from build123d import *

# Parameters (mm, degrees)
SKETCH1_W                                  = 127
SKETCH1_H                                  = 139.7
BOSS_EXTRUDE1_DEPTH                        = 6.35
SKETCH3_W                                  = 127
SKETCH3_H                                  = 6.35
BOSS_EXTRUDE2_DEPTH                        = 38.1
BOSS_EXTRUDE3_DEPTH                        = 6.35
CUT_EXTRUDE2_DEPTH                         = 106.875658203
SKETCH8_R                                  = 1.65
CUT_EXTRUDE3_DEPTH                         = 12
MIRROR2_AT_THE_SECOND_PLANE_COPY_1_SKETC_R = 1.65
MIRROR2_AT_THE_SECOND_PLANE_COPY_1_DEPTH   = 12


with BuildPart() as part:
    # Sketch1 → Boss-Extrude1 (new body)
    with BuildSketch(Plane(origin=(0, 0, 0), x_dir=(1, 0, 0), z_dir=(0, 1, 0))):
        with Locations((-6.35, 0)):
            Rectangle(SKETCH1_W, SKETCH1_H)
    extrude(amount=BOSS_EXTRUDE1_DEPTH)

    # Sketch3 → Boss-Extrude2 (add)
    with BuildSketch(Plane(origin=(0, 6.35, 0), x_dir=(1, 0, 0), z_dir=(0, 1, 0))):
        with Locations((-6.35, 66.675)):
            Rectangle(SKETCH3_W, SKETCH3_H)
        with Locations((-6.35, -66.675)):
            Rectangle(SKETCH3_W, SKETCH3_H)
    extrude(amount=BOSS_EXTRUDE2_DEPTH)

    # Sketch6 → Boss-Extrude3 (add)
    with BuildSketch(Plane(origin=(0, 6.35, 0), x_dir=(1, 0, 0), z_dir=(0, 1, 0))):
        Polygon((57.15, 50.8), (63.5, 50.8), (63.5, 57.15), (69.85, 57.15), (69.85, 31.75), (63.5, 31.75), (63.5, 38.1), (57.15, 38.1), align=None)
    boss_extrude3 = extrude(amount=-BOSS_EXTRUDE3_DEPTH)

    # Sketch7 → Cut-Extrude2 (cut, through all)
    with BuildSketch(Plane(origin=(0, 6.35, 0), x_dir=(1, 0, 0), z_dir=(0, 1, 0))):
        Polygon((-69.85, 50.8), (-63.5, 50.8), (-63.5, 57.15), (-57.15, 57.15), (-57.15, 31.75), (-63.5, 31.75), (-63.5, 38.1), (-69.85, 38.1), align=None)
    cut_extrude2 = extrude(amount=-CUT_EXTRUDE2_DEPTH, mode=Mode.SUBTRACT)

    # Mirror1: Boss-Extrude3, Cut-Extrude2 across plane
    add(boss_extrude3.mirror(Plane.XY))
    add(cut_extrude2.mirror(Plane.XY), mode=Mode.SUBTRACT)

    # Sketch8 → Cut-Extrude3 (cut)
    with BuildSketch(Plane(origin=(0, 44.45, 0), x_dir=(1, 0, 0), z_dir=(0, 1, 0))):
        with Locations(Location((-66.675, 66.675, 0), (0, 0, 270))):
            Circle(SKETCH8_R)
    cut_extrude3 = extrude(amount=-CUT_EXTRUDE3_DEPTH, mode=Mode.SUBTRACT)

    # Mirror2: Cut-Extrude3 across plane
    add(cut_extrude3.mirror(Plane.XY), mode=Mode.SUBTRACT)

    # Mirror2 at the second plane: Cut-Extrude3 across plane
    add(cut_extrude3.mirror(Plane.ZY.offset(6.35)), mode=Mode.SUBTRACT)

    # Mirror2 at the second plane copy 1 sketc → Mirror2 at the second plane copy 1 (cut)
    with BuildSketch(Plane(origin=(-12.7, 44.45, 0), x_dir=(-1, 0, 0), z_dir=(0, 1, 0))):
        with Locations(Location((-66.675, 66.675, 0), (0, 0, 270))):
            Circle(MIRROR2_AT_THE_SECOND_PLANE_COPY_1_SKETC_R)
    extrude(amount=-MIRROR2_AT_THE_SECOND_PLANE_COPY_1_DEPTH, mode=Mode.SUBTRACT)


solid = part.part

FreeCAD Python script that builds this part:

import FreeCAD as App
import Part
import Sketcher
Q = App.Units.Quantity


def add_polygon(sketch, points):
    """Adds a closed chain of lines whose ends are joined by coincident constraints."""
    first, n = sketch.GeometryCount, len(points)
    for a, b in zip(points, points[1:] + points[:1]):
        sketch.addGeometry(Part.LineSegment(App.Vector(*a, 0), App.Vector(*b, 0)), False)
    for i in range(n):
        sketch.addConstraint(Sketcher.Constraint("Coincident", first + i, 2, first + (i + 1) % n, 1))

doc = App.newDocument("Part")
body = doc.addObject("PartDesign::Body", "Body")

sketch1 = body.newObject("Sketcher::SketchObject", "Sketch")
sketch1.AttachmentSupport = (doc.getObject("XZ_Plane"), [""])
sketch1.MapMode = "FlatFace"
add_polygon(sketch1, [(-69.85, -69.85), (-69.85, 69.85), (57.15, 69.85), (57.15, -69.85)])
sketch1.addConstraint(Sketcher.Constraint("Vertical", 0))
sketch1.addConstraint(Sketcher.Constraint("Horizontal", 1))
sketch1.addConstraint(Sketcher.Constraint("Vertical", 2))
sketch1.addConstraint(Sketcher.Constraint("Horizontal", 3))
sketch1.addConstraint(Sketcher.Constraint("DistanceX", 1, 1, 1, 2, Q("5 in")))
sketch1.addConstraint(Sketcher.Constraint("DistanceY", 0, 1, 0, 2, Q("5.5 in")))
sketch1.addConstraint(Sketcher.Constraint("DistanceX", 0, 2, -1, 1, Q("2.75 in")))
sketch1.addConstraint(Sketcher.Constraint("DistanceY", -1, 1, 0, 2, Q("2.75 in")))
pad1 = body.newObject("PartDesign::Pad", "Pad")
pad1.Profile = sketch1
pad1.Length = Q("0.25 in")
pad1.Reversed = True

sketch2 = body.newObject("Sketcher::SketchObject", "Sketch001")
sketch2.AttachmentSupport = (doc.getObject("XZ_Plane"), [""])
sketch2.MapMode = "FlatFace"
sketch2.AttachmentOffset = App.Placement(App.Vector(0, 0, -0.25 * 25.4), App.Rotation())
add_polygon(sketch2, [(-69.85, -69.85), (-69.85, -63.5), (57.15, -63.5), (57.15, -69.85)])
add_polygon(sketch2, [(-69.85, 63.5), (-69.85, 69.85), (57.15, 69.85), (57.15, 63.5)])
sketch2.addConstraint(Sketcher.Constraint("Vertical", 0))
sketch2.addConstraint(Sketcher.Constraint("Horizontal", 1))
sketch2.addConstraint(Sketcher.Constraint("Vertical", 2))
sketch2.addConstraint(Sketcher.Constraint("Horizontal", 3))
sketch2.addConstraint(Sketcher.Constraint("Vertical", 4))
sketch2.addConstraint(Sketcher.Constraint("Horizontal", 5))
sketch2.addConstraint(Sketcher.Constraint("Vertical", 6))
sketch2.addConstraint(Sketcher.Constraint("Horizontal", 7))
sketch2.addConstraint(Sketcher.Constraint("Symmetric", 3, 2, 4, 2, -1))
sketch2.addConstraint(Sketcher.Constraint("Symmetric", 1, 2, 6, 2, -1))
sketch2.addConstraint(Sketcher.Constraint("DistanceX", 1, 1, 1, 2, Q("5 in")))
sketch2.addConstraint(Sketcher.Constraint("DistanceY", 1, 2, 6, 2, Q("5 in")))
sketch2.addConstraint(Sketcher.Constraint("DistanceY", 0, 1, 0, 2, Q("0.25 in")))
sketch2.addConstraint(Sketcher.Constraint("DistanceX", 0, 2, -1, 1, Q("2.75 in")))
pad2 = body.newObject("PartDesign::Pad", "Pad001")
pad2.Profile = sketch2
pad2.Length = Q("1.5 in")
pad2.Reversed = True

sketch3 = body.newObject("Sketcher::SketchObject", "Sketch002")
sketch3.AttachmentSupport = (doc.getObject("XZ_Plane"), [""])
sketch3.MapMode = "FlatFace"
sketch3.AttachmentOffset = App.Placement(App.Vector(0, 0, -0.25 * 25.4), App.Rotation())
add_polygon(sketch3, [(63.5, -50.8), (57.15, -50.8), (57.15, -38.1), (63.5, -38.1), (63.5, -31.75), (69.85, -31.75), (69.85, -57.15), (63.5, -57.15)])
sketch3.addConstraint(Sketcher.Constraint("Horizontal", 0))
sketch3.addConstraint(Sketcher.Constraint("Vertical", 1))
sketch3.addConstraint(Sketcher.Constraint("Horizontal", 2))
sketch3.addConstraint(Sketcher.Constraint("Vertical", 3))
sketch3.addConstraint(Sketcher.Constraint("Horizontal", 4))
sketch3.addConstraint(Sketcher.Constraint("Vertical", 5))
sketch3.addConstraint(Sketcher.Constraint("Horizontal", 6))
sketch3.addConstraint(Sketcher.Constraint("Vertical", 7))
sketch3.addConstraint(Sketcher.Constraint("Vertical", 3, 2, 6, 2))
sketch3.addConstraint(Sketcher.Constraint("Equal", 2, 4))
sketch3.addConstraint(Sketcher.Constraint("Equal", 6, 3))
sketch3.addConstraint(Sketcher.Constraint("Equal", 3, 7))
sketch3.addConstraint(Sketcher.Constraint("DistanceY", 5, 2, 5, 1, Q("1 in")))
sketch3.addConstraint(Sketcher.Constraint("DistanceY", 1, 1, 1, 2, Q("0.5 in")))
sketch3.addConstraint(Sketcher.Constraint("DistanceY", 0, 2, -1, 1, Q("2 in")))
sketch3.addConstraint(Sketcher.Constraint("DistanceX", -1, 1, 2, 2, Q("2.5 in")))
pad3 = body.newObject("PartDesign::Pad", "Pad002")
pad3.Profile = sketch3
pad3.Length = Q("0.25 in")

sketch4 = body.newObject("Sketcher::SketchObject", "Sketch003")
sketch4.AttachmentSupport = (doc.getObject("XZ_Plane"), [""])
sketch4.MapMode = "FlatFace"
sketch4.AttachmentOffset = App.Placement(App.Vector(0, 0, -0.25 * 25.4), App.Rotation())
add_polygon(sketch4, [(-63.5, -50.8), (-69.85, -50.8), (-69.85, -38.1), (-63.5, -38.1), (-63.5, -31.75), (-57.15, -31.75), (-57.15, -57.15), (-63.5, -57.15)])
sketch4.addConstraint(Sketcher.Constraint("Horizontal", 0))
sketch4.addConstraint(Sketcher.Constraint("Vertical", 1))
sketch4.addConstraint(Sketcher.Constraint("Horizontal", 2))
sketch4.addConstraint(Sketcher.Constraint("Vertical", 3))
sketch4.addConstraint(Sketcher.Constraint("Horizontal", 4))
sketch4.addConstraint(Sketcher.Constraint("Vertical", 5))
sketch4.addConstraint(Sketcher.Constraint("Horizontal", 6))
sketch4.addConstraint(Sketcher.Constraint("Vertical", 7))
sketch4.addConstraint(Sketcher.Constraint("Vertical", 3, 2, 6, 2))
sketch4.addConstraint(Sketcher.Constraint("Equal", 2, 4))
sketch4.addConstraint(Sketcher.Constraint("Equal", 6, 3))
sketch4.addConstraint(Sketcher.Constraint("Equal", 3, 7))
sketch4.addConstraint(Sketcher.Constraint("DistanceY", 5, 2, 5, 1, Q("1 in")))
sketch4.addConstraint(Sketcher.Constraint("DistanceY", 1, 1, 1, 2, Q("0.5 in")))
sketch4.addConstraint(Sketcher.Constraint("DistanceY", 0, 2, -1, 1, Q("2 in")))
sketch4.addConstraint(Sketcher.Constraint("DistanceX", 2, 2, -1, 1, Q("2.5 in")))
pocket1 = body.newObject("PartDesign::Pocket", "Pocket")
pocket1.Profile = sketch4
pocket1.Type = "ThroughAll"
pocket1.Reversed = True
doc.recompute()

mirrored = body.newObject("PartDesign::Mirrored", "Mirrored")
mirrored.Originals = [pad3, pocket1]
mirrored.MirrorPlane = (doc.getObject("XY_Plane"), [""])
body.Tip = mirrored

sketch5 = body.newObject("Sketcher::SketchObject", "Sketch004")
sketch5.AttachmentSupport = (doc.getObject("XZ_Plane"), [""])
sketch5.MapMode = "FlatFace"
sketch5.AttachmentOffset = App.Placement(App.Vector(0, 0, -1.75 * 25.4), App.Rotation())
sketch5.addGeometry(Part.Circle(App.Vector(-66.675, -66.675, 0), App.Vector(0, 0, 1), 1.65), False)
sketch5.addConstraint(Sketcher.Constraint("Diameter", 0, Q("3.3 mm")))
sketch5.addConstraint(Sketcher.Constraint("DistanceX", 0, 3, -1, 1, Q("2.625 in")))
sketch5.addConstraint(Sketcher.Constraint("DistanceY", 0, 3, -1, 1, Q("2.625 in")))
pocket2 = body.newObject("PartDesign::Pocket", "Pocket001")
pocket2.Profile = sketch5
pocket2.Length = 12
pocket2.Reversed = True
doc.recompute()

mirrored2 = body.newObject("PartDesign::Mirrored", "Mirrored001")
mirrored2.Originals = [pocket2]
mirrored2.MirrorPlane = (doc.getObject("XY_Plane"), [""])
body.Tip = mirrored2
doc.recompute()

datumplane = body.newObject("PartDesign::Plane", "DatumPlane")
datumplane.AttachmentSupport = (doc.getObject("YZ_Plane"), [""])
datumplane.MapMode = "FlatFace"
datumplane.AttachmentOffset = App.Placement(App.Vector(0, 0, -0.25 * 25.4), App.Rotation())
mirrored3 = body.newObject("PartDesign::Mirrored", "Mirrored002")
mirrored3.Originals = [pocket2]
mirrored3.MirrorPlane = (datumplane, [""])
body.Tip = mirrored3

sketch6 = body.newObject("Sketcher::SketchObject", "Sketch005")
sketch6.AttachmentSupport = (doc.getObject("XZ_Plane"), [""])
sketch6.MapMode = "FlatFace"
sketch6.AttachmentOffset = App.Placement(App.Vector(0, 0, -1.75 * 25.4), App.Rotation())
sketch6.addGeometry(Part.Circle(App.Vector(53.975, 66.675, 0), App.Vector(0, 0, 1), 1.65), False)
sketch6.addConstraint(Sketcher.Constraint("Diameter", 0, Q("3.3 mm")))
sketch6.addConstraint(Sketcher.Constraint("DistanceX", -1, 1, 0, 3, Q("2.125 in")))
sketch6.addConstraint(Sketcher.Constraint("DistanceY", -1, 1, 0, 3, Q("2.625 in")))
pocket3 = body.newObject("PartDesign::Pocket", "Pocket002")
pocket3.Profile = sketch6
pocket3.Length = 12
pocket3.Reversed = True

doc.recompute()
